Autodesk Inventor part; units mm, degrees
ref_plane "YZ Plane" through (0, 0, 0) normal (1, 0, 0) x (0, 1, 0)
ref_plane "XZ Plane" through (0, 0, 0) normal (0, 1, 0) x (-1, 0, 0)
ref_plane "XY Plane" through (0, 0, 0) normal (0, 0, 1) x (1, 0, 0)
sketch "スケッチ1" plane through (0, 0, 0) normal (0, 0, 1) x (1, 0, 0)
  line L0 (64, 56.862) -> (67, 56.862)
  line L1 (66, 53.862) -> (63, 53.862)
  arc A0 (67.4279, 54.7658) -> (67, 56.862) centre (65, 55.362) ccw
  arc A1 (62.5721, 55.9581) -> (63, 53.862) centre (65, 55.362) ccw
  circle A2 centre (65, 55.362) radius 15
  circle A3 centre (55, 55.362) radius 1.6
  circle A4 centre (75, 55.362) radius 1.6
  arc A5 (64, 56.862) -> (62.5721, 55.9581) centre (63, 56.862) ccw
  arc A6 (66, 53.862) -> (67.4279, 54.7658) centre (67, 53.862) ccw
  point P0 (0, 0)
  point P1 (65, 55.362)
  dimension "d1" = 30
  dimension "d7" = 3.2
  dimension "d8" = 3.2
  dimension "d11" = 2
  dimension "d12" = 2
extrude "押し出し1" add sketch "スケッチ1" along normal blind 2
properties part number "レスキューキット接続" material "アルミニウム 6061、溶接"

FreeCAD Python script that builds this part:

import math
import FreeCAD as App
import Part
import Sketcher
Q = App.Units.Quantity

doc = App.newDocument("Part")
body = doc.addObject("PartDesign::Body", "Body")

# Sketch on XY plane
sketch1 = doc.addObject("Sketcher::SketchObject", "Sketch")
body.addObject(sketch1)
sketch1.AttachmentSupport = (doc.XY_Plane, [""])
sketch1.MapMode = "FlatFace"
sketch1.addGeometry(Part.Circle(App.Vector(65, 55.4, 0), App.Vector(0, 0, 1), 15), False)
sketch1.addGeometry(Part.ArcOfCircle(Part.Circle(App.Vector(63, 56.9, 0), App.Vector(0, 0, 1), 1), math.radians(0), math.radians(245)), False)
sketch1.addGeometry(Part.LineSegment(App.Vector(64, 56.9, 0), App.Vector(67, 56.9, 0)), False)
sketch1.addGeometry(Part.ArcOfCircle(Part.Circle(App.Vector(65, 55.4, 0), App.Vector(0, 0, 1), 2.5), math.radians(-14), math.radians(37)), False)
sketch1.addGeometry(Part.ArcOfCircle(Part.Circle(App.Vector(67, 53.9, 0), App.Vector(0, 0, 1), 1), math.radians(180), math.radians(425)), False)
sketch1.addGeometry(Part.LineSegment(App.Vector(66, 53.9, 0), App.Vector(63, 53.9, 0)), False)
sketch1.addGeometry(Part.ArcOfCircle(Part.Circle(App.Vector(65, 55.4, 0), App.Vector(0, 0, 1), 2.5), math.radians(166), math.radians(217)), False)
sketch1.addGeometry(Part.Circle(App.Vector(55, 55.4, 0), App.Vector(0, 0, 1), 1.6), False)
sketch1.addGeometry(Part.Circle(App.Vector(75, 55.4, 0), App.Vector(0, 0, 1), 1.6), False)
sketch1.addConstraint(Sketcher.Constraint("Coincident", 1, 1, 2, 1))
sketch1.addConstraint(Sketcher.Constraint("Coincident", 2, 2, 3, 2))
sketch1.addConstraint(Sketcher.Constraint("Coincident", 3, 1, 4, 2))
sketch1.addConstraint(Sketcher.Constraint("Coincident", 4, 1, 5, 1))
sketch1.addConstraint(Sketcher.Constraint("Coincident", 5, 2, 6, 2))
sketch1.addConstraint(Sketcher.Constraint("Coincident", 6, 1, 1, 2))
sketch1.addConstraint(Sketcher.Constraint("Horizontal", 2))
sketch1.addConstraint(Sketcher.Constraint("Horizontal", 5))
sketch1.addConstraint(Sketcher.Constraint("Coincident", 3, 3, 0, 3))
sketch1.addConstraint(Sketcher.Constraint("Coincident", 6, 3, 0, 3))
sketch1.addConstraint(Sketcher.Constraint("Equal", 1, 4))
sketch1.addConstraint(Sketcher.Constraint("Equal", 3, 6))
sketch1.addConstraint(Sketcher.Constraint("Equal", 7, 8))
sketch1.addConstraint(Sketcher.Constraint("Horizontal", 6, 3, 7, 3))
sketch1.addConstraint(Sketcher.Constraint("Horizontal", 7, 3, 8, 3))
sketch1.addConstraint(Sketcher.Constraint("Vertical", 4, 3, 2, 2))
sketch1.addConstraint(Sketcher.Constraint("Vertical", 1, 3, 5, 2))
sketch1.addConstraint(Sketcher.Constraint("Diameter", 0, Q("30 mm")))
sketch1.addConstraint(Sketcher.Constraint("Radius", 1, Q("1 mm")))
sketch1.addConstraint(Sketcher.Constraint("Diameter", 7, Q("3.2 mm")))
sketch1.addConstraint(Sketcher.Constraint("DistanceX", 1, 3, 0, 3, Q("2 mm")))
sketch1.addConstraint(Sketcher.Constraint("DistanceX", 0, 3, 4, 3, Q("2 mm")))
sketch1.addConstraint(Sketcher.Constraint("Radius", 3, Q("2.5 mm")))
sketch1.addConstraint(Sketcher.Constraint("DistanceX", -1, 1, 0, 3, Q("65 mm")))
sketch1.addConstraint(Sketcher.Constraint("DistanceX", -1, 1, 7, 3, Q("55 mm")))
sketch1.addConstraint(Sketcher.Constraint("DistanceX", -1, 1, 8, 3, Q("75 mm")))
sketch1.addConstraint(Sketcher.Constraint("DistanceY", 4, 3, 1, 3, Q("3 mm")))
sketch1.addConstraint(Sketcher.Constraint("DistanceY", 4, 3, 1, 1, Q("3 mm")))
sketch1.addConstraint(Sketcher.Constraint("DistanceY", -1, 1, 0, 3, Q("55.362 mm")))
pad1 = doc.addObject("PartDesign::Pad", "Pad")
body.addObject(pad1)
pad1.Profile = sketch1
pad1.Length = 2

doc.recompute()
